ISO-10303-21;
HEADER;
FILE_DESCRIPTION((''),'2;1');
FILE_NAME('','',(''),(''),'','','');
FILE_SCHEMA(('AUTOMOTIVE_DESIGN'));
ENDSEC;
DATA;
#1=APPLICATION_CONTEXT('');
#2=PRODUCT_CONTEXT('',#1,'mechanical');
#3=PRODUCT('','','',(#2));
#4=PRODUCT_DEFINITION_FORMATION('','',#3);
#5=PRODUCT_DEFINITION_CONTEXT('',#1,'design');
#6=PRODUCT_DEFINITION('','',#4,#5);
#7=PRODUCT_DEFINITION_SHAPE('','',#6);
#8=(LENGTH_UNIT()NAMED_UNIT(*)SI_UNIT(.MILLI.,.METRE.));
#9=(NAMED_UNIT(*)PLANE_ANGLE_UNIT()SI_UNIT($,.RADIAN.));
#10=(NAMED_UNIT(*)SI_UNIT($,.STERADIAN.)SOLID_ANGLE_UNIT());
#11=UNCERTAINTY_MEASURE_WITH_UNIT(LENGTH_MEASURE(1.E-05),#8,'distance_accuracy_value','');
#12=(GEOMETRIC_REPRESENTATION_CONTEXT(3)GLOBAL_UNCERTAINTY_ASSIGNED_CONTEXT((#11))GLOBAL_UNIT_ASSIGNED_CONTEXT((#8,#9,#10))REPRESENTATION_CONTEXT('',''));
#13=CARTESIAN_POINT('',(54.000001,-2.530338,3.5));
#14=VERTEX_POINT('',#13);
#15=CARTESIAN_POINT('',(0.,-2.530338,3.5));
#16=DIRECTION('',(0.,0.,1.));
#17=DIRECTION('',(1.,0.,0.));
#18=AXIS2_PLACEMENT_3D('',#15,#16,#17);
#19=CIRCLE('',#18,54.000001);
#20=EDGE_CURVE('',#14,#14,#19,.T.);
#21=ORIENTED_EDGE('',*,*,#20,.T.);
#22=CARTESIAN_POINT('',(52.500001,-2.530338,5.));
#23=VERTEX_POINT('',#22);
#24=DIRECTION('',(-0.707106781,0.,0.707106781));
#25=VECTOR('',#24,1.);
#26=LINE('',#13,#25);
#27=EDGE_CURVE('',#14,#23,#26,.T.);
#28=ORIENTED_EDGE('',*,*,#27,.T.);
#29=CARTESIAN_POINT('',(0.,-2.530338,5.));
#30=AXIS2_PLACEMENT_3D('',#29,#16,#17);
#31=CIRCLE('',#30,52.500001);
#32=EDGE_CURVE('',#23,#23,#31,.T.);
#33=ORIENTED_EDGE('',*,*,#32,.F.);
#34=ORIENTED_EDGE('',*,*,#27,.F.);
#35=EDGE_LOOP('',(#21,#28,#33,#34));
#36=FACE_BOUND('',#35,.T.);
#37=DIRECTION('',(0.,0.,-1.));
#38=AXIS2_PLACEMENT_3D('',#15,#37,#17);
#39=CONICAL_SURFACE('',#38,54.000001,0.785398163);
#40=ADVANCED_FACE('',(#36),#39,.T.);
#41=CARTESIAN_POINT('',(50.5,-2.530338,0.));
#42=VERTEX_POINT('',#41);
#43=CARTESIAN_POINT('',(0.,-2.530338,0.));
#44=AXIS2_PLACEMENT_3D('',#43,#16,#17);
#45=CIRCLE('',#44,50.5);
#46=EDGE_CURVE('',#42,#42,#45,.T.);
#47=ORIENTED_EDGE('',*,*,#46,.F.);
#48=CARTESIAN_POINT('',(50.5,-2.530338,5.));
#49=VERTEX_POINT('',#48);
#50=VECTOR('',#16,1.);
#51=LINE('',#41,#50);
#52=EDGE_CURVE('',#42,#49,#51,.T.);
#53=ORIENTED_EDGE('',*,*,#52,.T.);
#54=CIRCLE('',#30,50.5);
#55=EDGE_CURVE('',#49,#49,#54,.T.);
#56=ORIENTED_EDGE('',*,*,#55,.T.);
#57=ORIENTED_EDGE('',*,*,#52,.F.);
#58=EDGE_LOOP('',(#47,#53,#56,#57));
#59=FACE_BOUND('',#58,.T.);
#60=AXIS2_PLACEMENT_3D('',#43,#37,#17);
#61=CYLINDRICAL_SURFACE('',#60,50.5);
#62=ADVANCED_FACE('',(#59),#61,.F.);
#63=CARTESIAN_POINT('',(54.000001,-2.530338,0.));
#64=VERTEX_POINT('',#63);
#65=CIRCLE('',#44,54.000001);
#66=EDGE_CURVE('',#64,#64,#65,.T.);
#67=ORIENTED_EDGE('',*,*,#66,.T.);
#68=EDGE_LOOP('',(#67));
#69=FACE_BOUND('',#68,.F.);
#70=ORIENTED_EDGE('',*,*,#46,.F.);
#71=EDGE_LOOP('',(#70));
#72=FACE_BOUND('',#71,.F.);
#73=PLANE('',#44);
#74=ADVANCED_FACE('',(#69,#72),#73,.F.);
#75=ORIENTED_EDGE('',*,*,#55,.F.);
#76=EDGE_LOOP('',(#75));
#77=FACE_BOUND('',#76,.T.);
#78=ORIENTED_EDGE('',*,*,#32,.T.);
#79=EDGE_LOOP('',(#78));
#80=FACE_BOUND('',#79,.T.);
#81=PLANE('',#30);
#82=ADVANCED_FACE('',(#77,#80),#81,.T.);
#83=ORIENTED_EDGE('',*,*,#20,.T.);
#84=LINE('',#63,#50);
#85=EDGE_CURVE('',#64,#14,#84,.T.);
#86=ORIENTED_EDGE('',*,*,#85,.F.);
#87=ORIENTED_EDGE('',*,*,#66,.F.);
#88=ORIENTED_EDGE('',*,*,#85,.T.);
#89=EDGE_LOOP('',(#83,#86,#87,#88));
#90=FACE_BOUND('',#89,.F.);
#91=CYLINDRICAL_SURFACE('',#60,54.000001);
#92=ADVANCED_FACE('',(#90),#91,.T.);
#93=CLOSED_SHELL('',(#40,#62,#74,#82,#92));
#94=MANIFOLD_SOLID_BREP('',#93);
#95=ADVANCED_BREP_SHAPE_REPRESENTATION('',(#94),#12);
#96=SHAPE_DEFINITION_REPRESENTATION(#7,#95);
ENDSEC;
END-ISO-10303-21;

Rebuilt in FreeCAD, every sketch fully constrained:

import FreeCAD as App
import Part
import Sketcher
from FreeCAD import Vector


def edges_at(feature, points):
    """Names of the edges that pass closest to the given points."""
    edges = feature.Shape.Edges
    near = lambda p: min(range(len(edges)), key=lambda i: edges[i].distToShape(Part.Vertex(*p))[0])
    return sorted({f"Edge{near(p) + 1}" for p in points})

doc = App.newDocument("Part")
params = doc.addObject("Spreadsheet::Sheet", "Params")
for row, (alias, value) in enumerate([
    ("sketch1_diameter", "108.000002 mm"),
    ("sketch1_diameter2", "101 mm"),
    ("pad1_length", "5 mm"),
    ("chamfer_size", "1.5 mm"),
], start=1):
    params.set(f"A{row}", alias)
    params.set(f"B{row}", "=" + value)
    params.setAlias(f"B{row}", alias)

body = doc.addObject("PartDesign::Body", "Body")

sketch1 = body.newObject("Sketcher::SketchObject", "Sketch")
sketch1.AttachmentSupport = (doc.getObject("XY_Plane"), [""])
sketch1.MapMode = "FlatFace"
sketch1.addGeometry(Part.Circle(Vector(0, -3, 0), Vector(0, 0, 1), 54), False)
sketch1.addGeometry(Part.Circle(Vector(0, -3, 0), Vector(0, 0, 1), 50), False)
sketch1.addConstraint(Sketcher.Constraint("Coincident", 1, 3, 0, 3))
sketch1.addConstraint(Sketcher.Constraint("PointOnObject", 0, 3, -2))
sketch1.addConstraint(Sketcher.Constraint("Diameter", 0, 108.000002))
sketch1.addConstraint(Sketcher.Constraint("Diameter", 1, 101.0))
sketch1.addConstraint(Sketcher.Constraint("DistanceY", 0, 3, -1, 1, 2.530338))
sketch1.setExpression("Constraints[2]", "Params.sketch1_diameter")
sketch1.setExpression("Constraints[3]", "Params.sketch1_diameter2")
pad1 = body.newObject("PartDesign::Pad", "Pad")
pad1.Profile = sketch1
pad1.setExpression("Length", "Params.pad1_length")
doc.recompute()

chamfer = body.newObject("PartDesign::Chamfer", "Chamfer")
chamfer.Base = (pad1, edges_at(pad1, [(-54, -2.53, 5)]))
chamfer.setExpression("Size", "Params.chamfer_size")

doc.recompute()
